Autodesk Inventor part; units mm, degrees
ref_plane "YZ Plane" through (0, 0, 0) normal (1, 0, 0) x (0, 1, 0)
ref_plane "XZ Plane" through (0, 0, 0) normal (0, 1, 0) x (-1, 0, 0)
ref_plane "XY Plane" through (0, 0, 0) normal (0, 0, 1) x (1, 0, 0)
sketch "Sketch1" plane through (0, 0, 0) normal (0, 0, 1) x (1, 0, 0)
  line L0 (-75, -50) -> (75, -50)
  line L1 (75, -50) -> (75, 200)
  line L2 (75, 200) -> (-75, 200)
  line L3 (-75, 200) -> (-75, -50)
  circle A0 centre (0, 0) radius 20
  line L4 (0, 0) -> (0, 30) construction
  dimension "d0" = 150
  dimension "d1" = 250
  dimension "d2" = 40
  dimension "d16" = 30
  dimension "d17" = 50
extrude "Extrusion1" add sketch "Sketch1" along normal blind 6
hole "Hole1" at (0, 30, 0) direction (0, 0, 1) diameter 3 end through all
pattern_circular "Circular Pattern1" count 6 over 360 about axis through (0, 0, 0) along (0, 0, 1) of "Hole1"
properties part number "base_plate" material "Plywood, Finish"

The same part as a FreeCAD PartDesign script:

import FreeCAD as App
import Part
import Sketcher
Q = App.Units.Quantity

doc = App.newDocument("Part")
body = doc.addObject("PartDesign::Body", "Body")

# Sketch on XY plane
sketch1 = doc.addObject("Sketcher::SketchObject", "Sketch")
body.addObject(sketch1)
sketch1.AttachmentSupport = (doc.XY_Plane, [""])
sketch1.MapMode = "FlatFace"
sketch1.addGeometry(Part.LineSegment(App.Vector(-75, 200, 0), App.Vector(-75, -50, 0)), False)
sketch1.addGeometry(Part.LineSegment(App.Vector(-75, -50, 0), App.Vector(75, -50, 0)), False)
sketch1.addGeometry(Part.LineSegment(App.Vector(75, -50, 0), App.Vector(75, 200, 0)), False)
sketch1.addGeometry(Part.LineSegment(App.Vector(75, 200, 0), App.Vector(-75, 200, 0)), False)
sketch1.addGeometry(Part.Circle(App.Vector(0, 0, 0), App.Vector(0, 0, 1), 20), False)
sketch1.addConstraint(Sketcher.Constraint("Coincident", 0, 2, 1, 1))
sketch1.addConstraint(Sketcher.Constraint("Coincident", 1, 2, 2, 1))
sketch1.addConstraint(Sketcher.Constraint("Coincident", 2, 2, 3, 1))
sketch1.addConstraint(Sketcher.Constraint("Coincident", 3, 2, 0, 1))
sketch1.addConstraint(Sketcher.Constraint("Vertical", 0))
sketch1.addConstraint(Sketcher.Constraint("Horizontal", 1))
sketch1.addConstraint(Sketcher.Constraint("Vertical", 2))
sketch1.addConstraint(Sketcher.Constraint("Horizontal", 3))
sketch1.addConstraint(Sketcher.Constraint("Coincident", 4, 3, -1, 1))
sketch1.addConstraint(Sketcher.Constraint("Diameter", 4, Q("40 mm")))
sketch1.addConstraint(Sketcher.Constraint("DistanceX", 1, 1, 1, 2, Q("150 mm")))
sketch1.addConstraint(Sketcher.Constraint("DistanceY", 0, 2, 0, 1, Q("250 mm")))
sketch1.addConstraint(Sketcher.Constraint("DistanceY", 0, 2, -1, 1, Q("50 mm")))
sketch1.addConstraint(Sketcher.Constraint("DistanceX", 0, 2, -1, 1, Q("75 mm")))
pad1 = doc.addObject("PartDesign::Pad", "Pad")
body.addObject(pad1)
pad1.Profile = sketch1
pad1.Length = 6

# Sketch on XY plane
sketch2 = doc.addObject("Sketcher::SketchObject", "Sketch001")
body.addObject(sketch2)
sketch2.AttachmentSupport = (doc.XY_Plane, [""])
sketch2.MapMode = "FlatFace"
sketch2.addGeometry(Part.Circle(App.Vector(0, 30, 0), App.Vector(0, 0, 1), 1.5), False)
sketch2.addConstraint(Sketcher.Constraint("PointOnObject", 0, 3, -2))
sketch2.addConstraint(Sketcher.Constraint("Diameter", 0, Q("3 mm")))
sketch2.addConstraint(Sketcher.Constraint("DistanceY", -1, 1, 0, 3, Q("30 mm")))
doc.recompute()
hole = doc.addObject("PartDesign::Hole", "Hole")
body.addObject(hole)
hole.Profile = sketch2
hole.ThreadType = "None"
hole.Diameter = 3
hole.DepthType = "ThroughAll"
hole.Reversed = True
doc.recompute()

polarpattern = doc.addObject("PartDesign::PolarPattern", "PolarPattern")
body.addObject(polarpattern)
polarpattern.Originals = [hole]
polarpattern.Axis = (doc.Z_Axis, [""])
polarpattern.Angle = 360
polarpattern.Occurrences = 6
body.Tip = polarpattern

doc.recompute()
